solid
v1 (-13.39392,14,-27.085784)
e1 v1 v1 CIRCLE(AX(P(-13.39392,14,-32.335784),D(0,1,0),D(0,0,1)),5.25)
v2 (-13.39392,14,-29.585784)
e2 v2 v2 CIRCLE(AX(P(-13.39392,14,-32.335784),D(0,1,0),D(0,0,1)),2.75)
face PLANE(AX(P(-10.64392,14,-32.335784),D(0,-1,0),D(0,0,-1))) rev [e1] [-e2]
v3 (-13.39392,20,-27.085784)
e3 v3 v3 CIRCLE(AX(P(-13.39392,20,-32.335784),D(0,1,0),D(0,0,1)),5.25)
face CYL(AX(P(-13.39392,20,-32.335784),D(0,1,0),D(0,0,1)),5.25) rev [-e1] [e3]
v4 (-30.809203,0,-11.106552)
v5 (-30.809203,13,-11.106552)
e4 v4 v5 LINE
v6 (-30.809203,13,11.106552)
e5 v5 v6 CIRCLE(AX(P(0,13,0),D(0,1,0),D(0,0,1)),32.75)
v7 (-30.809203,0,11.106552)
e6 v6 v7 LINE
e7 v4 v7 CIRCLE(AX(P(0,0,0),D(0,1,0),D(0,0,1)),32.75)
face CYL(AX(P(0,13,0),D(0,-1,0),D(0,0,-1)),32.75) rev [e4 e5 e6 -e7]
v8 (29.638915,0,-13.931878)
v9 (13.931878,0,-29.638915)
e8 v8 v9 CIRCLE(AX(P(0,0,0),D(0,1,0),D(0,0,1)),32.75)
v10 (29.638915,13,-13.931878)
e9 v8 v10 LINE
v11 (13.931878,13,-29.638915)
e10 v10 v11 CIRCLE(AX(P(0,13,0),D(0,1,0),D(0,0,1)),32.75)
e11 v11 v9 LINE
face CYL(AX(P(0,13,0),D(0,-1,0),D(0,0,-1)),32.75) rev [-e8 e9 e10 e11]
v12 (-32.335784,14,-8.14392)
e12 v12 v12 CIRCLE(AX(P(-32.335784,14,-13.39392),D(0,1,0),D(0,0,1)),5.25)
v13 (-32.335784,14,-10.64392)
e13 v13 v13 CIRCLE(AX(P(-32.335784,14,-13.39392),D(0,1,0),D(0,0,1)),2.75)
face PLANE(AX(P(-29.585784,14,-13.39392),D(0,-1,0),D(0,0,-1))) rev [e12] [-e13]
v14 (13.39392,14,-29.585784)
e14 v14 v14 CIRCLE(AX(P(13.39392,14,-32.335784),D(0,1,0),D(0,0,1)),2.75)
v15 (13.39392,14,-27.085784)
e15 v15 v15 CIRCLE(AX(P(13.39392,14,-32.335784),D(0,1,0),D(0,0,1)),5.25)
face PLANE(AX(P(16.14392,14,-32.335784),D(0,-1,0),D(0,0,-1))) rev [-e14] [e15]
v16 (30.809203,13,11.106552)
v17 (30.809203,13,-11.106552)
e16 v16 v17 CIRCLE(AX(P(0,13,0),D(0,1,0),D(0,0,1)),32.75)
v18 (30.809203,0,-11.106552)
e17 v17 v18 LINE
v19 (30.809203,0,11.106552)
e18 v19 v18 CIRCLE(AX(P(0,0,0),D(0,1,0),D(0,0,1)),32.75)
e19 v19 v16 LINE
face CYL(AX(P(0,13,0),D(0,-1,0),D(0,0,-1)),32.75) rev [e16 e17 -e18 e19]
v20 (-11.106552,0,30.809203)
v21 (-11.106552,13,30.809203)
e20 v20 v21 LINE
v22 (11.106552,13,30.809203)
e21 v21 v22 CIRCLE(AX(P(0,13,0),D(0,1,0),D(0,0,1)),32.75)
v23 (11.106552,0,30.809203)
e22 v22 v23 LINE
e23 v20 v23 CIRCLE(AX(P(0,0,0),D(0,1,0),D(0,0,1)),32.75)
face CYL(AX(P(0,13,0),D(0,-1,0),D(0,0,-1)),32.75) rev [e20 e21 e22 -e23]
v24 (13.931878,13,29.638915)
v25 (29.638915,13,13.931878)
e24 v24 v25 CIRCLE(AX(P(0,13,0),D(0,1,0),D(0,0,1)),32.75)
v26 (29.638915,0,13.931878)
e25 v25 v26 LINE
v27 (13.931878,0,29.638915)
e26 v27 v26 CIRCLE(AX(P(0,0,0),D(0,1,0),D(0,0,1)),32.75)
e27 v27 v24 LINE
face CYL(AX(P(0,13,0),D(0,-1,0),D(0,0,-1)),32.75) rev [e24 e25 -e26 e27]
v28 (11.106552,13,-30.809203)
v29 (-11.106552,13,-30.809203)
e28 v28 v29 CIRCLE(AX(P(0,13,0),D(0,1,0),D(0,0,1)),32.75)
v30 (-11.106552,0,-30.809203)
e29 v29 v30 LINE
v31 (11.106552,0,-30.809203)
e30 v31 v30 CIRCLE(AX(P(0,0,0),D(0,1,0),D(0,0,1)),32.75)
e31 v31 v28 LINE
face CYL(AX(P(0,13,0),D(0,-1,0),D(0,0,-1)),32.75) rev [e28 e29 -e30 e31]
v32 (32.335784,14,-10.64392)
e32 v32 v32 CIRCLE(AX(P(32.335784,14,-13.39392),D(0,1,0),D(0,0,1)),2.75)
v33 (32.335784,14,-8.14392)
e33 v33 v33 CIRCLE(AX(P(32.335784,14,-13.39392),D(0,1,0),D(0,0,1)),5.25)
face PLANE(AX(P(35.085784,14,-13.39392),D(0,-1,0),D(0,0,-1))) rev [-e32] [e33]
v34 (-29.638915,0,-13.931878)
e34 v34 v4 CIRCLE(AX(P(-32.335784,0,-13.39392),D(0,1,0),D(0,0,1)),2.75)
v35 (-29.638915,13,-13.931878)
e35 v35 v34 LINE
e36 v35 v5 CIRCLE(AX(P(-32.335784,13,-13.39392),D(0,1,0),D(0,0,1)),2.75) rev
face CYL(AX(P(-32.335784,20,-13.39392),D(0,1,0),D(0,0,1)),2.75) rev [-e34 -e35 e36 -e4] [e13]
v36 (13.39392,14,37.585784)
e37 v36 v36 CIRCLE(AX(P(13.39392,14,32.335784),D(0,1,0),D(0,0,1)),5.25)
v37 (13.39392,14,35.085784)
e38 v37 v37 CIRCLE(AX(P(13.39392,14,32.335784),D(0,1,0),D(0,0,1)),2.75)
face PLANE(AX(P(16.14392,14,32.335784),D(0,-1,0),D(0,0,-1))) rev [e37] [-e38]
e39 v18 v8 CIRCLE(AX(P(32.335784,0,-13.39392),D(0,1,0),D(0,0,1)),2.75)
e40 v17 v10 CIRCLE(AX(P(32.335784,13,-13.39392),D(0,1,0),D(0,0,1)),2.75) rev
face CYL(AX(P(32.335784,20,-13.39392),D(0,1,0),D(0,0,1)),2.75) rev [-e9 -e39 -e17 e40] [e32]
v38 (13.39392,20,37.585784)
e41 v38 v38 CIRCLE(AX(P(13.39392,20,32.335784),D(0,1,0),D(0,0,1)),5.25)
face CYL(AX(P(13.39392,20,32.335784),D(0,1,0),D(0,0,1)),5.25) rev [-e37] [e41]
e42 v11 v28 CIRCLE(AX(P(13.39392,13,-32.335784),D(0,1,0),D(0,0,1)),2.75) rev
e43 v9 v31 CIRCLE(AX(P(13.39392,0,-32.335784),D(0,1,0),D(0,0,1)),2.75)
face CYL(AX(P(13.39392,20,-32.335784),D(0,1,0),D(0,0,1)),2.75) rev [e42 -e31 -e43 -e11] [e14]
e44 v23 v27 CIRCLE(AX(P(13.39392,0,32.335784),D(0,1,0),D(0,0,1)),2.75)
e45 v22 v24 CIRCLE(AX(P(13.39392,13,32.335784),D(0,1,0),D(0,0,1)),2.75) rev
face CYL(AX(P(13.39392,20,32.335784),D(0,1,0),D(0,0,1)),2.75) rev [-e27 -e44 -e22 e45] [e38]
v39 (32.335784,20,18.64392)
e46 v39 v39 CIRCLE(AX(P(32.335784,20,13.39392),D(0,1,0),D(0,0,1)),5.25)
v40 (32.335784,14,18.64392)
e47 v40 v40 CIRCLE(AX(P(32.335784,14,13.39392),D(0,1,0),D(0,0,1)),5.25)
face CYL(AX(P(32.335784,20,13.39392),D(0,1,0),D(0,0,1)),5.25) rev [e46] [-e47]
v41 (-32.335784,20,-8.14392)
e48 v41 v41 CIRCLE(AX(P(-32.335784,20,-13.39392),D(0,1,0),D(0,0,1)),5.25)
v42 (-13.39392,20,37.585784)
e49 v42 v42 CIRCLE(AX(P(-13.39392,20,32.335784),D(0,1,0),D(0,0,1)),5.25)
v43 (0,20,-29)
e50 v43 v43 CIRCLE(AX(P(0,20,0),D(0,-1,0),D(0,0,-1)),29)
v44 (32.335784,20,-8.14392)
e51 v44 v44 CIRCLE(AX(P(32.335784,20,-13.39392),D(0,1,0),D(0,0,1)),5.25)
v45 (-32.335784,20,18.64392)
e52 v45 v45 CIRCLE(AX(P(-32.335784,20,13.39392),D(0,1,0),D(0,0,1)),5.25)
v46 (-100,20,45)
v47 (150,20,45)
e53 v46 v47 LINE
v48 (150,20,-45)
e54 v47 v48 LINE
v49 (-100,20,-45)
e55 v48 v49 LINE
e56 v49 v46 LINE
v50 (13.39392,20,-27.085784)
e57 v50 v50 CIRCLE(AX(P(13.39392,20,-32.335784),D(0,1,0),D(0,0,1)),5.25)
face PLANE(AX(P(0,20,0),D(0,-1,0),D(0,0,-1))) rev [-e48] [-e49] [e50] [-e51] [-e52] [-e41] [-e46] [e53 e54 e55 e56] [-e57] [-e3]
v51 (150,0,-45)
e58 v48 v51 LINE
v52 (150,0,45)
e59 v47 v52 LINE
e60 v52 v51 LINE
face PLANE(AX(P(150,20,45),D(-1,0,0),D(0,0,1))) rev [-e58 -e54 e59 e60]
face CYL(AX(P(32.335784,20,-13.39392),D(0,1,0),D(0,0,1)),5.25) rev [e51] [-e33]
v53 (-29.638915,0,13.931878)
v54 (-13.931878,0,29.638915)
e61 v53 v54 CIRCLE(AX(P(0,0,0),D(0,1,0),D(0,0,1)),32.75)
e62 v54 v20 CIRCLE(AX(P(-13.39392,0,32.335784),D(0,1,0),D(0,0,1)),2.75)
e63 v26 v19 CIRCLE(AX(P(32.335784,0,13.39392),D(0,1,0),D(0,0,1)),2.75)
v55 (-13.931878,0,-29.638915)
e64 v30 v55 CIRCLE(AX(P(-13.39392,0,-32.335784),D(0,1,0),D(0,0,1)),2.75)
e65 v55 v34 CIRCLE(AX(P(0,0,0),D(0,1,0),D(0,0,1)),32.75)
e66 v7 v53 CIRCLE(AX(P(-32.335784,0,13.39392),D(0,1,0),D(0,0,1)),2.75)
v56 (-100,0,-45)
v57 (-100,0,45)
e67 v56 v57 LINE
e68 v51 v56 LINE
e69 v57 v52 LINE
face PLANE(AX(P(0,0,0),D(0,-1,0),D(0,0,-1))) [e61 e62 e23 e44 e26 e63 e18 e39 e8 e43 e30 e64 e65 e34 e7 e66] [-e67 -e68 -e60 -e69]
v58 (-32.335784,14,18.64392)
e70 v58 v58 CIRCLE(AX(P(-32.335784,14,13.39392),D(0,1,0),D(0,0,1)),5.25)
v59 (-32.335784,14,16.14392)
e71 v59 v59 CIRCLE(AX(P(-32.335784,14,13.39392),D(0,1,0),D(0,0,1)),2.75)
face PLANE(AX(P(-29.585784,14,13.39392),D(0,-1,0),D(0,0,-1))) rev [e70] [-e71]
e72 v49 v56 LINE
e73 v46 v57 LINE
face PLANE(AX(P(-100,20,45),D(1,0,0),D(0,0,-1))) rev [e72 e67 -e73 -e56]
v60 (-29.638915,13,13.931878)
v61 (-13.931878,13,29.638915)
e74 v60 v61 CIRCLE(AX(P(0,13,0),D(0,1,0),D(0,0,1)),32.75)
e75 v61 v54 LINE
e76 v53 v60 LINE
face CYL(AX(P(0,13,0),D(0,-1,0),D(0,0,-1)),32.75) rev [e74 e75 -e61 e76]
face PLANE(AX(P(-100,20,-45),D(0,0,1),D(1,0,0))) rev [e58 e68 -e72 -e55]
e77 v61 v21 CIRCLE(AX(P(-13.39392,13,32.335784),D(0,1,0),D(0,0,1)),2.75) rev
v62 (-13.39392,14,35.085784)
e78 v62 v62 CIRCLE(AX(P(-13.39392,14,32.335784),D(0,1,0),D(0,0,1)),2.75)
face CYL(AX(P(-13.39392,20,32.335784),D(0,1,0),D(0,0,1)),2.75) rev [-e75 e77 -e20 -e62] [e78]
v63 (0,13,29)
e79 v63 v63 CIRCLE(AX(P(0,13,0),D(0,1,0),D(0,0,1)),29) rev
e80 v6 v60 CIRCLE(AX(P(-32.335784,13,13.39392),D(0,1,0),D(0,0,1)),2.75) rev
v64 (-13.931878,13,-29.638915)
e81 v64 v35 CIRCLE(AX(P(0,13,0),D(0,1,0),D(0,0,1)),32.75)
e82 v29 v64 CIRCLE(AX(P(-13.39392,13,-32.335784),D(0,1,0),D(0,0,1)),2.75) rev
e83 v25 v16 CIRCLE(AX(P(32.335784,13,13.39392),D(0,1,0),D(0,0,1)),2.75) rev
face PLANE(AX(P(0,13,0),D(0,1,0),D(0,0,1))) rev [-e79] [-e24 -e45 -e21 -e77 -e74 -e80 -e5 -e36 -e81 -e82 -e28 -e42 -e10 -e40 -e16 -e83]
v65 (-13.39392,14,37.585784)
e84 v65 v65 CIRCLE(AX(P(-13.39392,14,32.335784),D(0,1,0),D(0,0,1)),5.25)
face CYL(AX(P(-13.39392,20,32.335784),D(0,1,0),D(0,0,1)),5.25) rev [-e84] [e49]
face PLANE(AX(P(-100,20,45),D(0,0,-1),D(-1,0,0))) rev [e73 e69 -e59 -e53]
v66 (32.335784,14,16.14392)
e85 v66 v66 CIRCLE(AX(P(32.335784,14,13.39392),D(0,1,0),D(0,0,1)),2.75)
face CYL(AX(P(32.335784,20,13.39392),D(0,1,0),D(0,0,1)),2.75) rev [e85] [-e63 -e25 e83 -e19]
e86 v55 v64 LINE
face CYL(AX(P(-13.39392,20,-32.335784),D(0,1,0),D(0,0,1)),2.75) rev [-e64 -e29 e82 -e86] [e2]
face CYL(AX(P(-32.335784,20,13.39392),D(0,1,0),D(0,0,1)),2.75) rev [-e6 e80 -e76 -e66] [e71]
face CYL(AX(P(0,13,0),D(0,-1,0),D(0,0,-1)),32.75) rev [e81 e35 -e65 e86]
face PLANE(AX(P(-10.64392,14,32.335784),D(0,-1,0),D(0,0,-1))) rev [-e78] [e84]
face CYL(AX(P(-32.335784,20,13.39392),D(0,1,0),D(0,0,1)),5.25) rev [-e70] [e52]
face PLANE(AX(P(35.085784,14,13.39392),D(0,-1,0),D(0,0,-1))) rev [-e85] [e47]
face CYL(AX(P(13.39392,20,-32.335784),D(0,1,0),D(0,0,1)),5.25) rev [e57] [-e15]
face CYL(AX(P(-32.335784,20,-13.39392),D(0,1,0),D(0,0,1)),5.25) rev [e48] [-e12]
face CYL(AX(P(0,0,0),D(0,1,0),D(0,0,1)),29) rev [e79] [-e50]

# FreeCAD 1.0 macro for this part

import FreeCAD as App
import Part
import Sketcher
from FreeCAD import Vector

doc = App.newDocument("Part")
body = doc.addObject("PartDesign::Body", "Body")

# Sketch on XZ plane
sketch1 = body.newObject("Sketcher::SketchObject", "Sketch")
sketch1.AttachmentSupport = (doc.getObject("XZ_Plane"), [""])
sketch1.MapMode = "FlatFace"
sketch1.addGeometry(Part.LineSegment(Vector(-100, -45, 0), Vector(-100, 45, 0)), False)
sketch1.addGeometry(Part.LineSegment(Vector(-100, 45, 0), Vector(150, 45, 0)), False)
sketch1.addGeometry(Part.LineSegment(Vector(150, 45, 0), Vector(150, -45, 0)), False)
sketch1.addGeometry(Part.LineSegment(Vector(150, -45, 0), Vector(-100, -45, 0)), False)
sketch1.addConstraint(Sketcher.Constraint("Coincident", 0, 2, 1, 1))
sketch1.addConstraint(Sketcher.Constraint("Coincident", 1, 2, 2, 1))
sketch1.addConstraint(Sketcher.Constraint("Coincident", 2, 2, 3, 1))
sketch1.addConstraint(Sketcher.Constraint("Coincident", 3, 2, 0, 1))
sketch1.addConstraint(Sketcher.Constraint("Vertical", 0))
sketch1.addConstraint(Sketcher.Constraint("Horizontal", 1))
sketch1.addConstraint(Sketcher.Constraint("Vertical", 2))
sketch1.addConstraint(Sketcher.Constraint("Horizontal", 3))
sketch1.addConstraint(Sketcher.Constraint("DistanceX", 1, 1, 1, 2, 250.0))
sketch1.addConstraint(Sketcher.Constraint("DistanceY", 0, 1, 0, 2, 90.0))
sketch1.addConstraint(Sketcher.Constraint("DistanceX", 0, 2, -1, 1, 100.0))
sketch1.addConstraint(Sketcher.Constraint("DistanceY", -1, 1, 0, 2, 45.0))
pad1 = body.newObject("PartDesign::Pad", "Pad")
pad1.Profile = sketch1
pad1.Length = 20
pad1.Reversed = True

# Sketch on XZ plane
sketch2 = body.newObject("Sketcher::SketchObject", "Sketch001")
sketch2.AttachmentSupport = (doc.getObject("XZ_Plane"), [""])
sketch2.MapMode = "FlatFace"
sketch2.AttachmentOffset = App.Placement(Vector(0, 0, -20), App.Rotation())
sketch2.addGeometry(Part.Circle(Vector(0, 0, 0), Vector(0, 0, 1), 29), False)
sketch2.addConstraint(Sketcher.Constraint("Coincident", 0, 3, -1, 1))
sketch2.addConstraint(Sketcher.Constraint("Diameter", 0, 58.0))
pocket1 = body.newObject("PartDesign::Pocket", "Pocket")
pocket1.Profile = sketch2
pocket1.Type = "ThroughAll"
pocket1.Midplane = True

# Sketch on XZ plane
sketch3 = body.newObject("Sketcher::SketchObject", "Sketch002")
sketch3.AttachmentSupport = (doc.getObject("XZ_Plane"), [""])
sketch3.MapMode = "FlatFace"
sketch3.AttachmentOffset = App.Placement(Vector(0, 0, -20), App.Rotation())
sketch3.addGeometry(Part.Circle(Vector(-32.335784, -13.39392, 0), Vector(0, 0, 1), 2.75), False)
sketch3.addGeometry(Part.Circle(Vector(-13.39392, -32.335784, 0), Vector(0, 0, 1), 2.75), False)
sketch3.addGeometry(Part.Circle(Vector(13.39392, -32.335784, 0), Vector(0, 0, 1), 2.75), False)
sketch3.addGeometry(Part.Circle(Vector(32.335784, -13.39392, 0), Vector(0, 0, 1), 2.75), False)
sketch3.addGeometry(Part.Circle(Vector(32.335784, 13.39392, 0), Vector(0, 0, 1), 2.75), False)
sketch3.addGeometry(Part.Circle(Vector(13.39392, 32.335784, 0), Vector(0, 0, 1), 2.75), False)
sketch3.addGeometry(Part.Circle(Vector(-13.39392, 32.335784, 0), Vector(0, 0, 1), 2.75), False)
sketch3.addGeometry(Part.Circle(Vector(-32.335784, 13.39392, 0), Vector(0, 0, 1), 2.75), False)
sketch3.addConstraint(Sketcher.Constraint("Equal", 0, 1))
sketch3.addConstraint(Sketcher.Constraint("Equal", 1, 2))
sketch3.addConstraint(Sketcher.Constraint("Equal", 2, 3))
sketch3.addConstraint(Sketcher.Constraint("Equal", 3, 4))
sketch3.addConstraint(Sketcher.Constraint("Equal", 4, 5))
sketch3.addConstraint(Sketcher.Constraint("Equal", 5, 6))
sketch3.addConstraint(Sketcher.Constraint("Equal", 6, 7))
sketch3.addConstraint(Sketcher.Constraint("Symmetric", 0, 3, 4, 3, -1, 1))
sketch3.addConstraint(Sketcher.Constraint("Symmetric", 1, 3, 5, 3, -1, 1))
sketch3.addConstraint(Sketcher.Constraint("Symmetric", 2, 3, 6, 3, -1, 1))
sketch3.addConstraint(Sketcher.Constraint("Symmetric", 3, 3, 7, 3, -1, 1))
sketch3.addConstraint(Sketcher.Constraint("Symmetric", 1, 3, 2, 3, -2))
sketch3.addConstraint(Sketcher.Constraint("Symmetric", 0, 3, 3, 3, -2))
sketch3.addConstraint(Sketcher.Constraint("Diameter", 0, 5.5))
sketch3.addConstraint(Sketcher.Constraint("DistanceY", 0, 3, -1, 1, 13.39392))
sketch3.addConstraint(Sketcher.Constraint("DistanceX", 1, 3, -1, 1, 13.39392))
sketch3.addConstraint(Sketcher.Constraint("DistanceX", 0, 3, -1, 1, 32.335784))
sketch3.addConstraint(Sketcher.Constraint("DistanceY", 1, 3, -1, 1, 32.335784))
doc.recompute()
hole = body.newObject("PartDesign::Hole", "Hole")
hole.Profile = sketch3
hole.ThreadType = "None"
hole.Diameter = 5.5
hole.DepthType = "ThroughAll"
hole.HoleCutType = "Counterbore"
hole.HoleCutDiameter = 10.5
hole.HoleCutDepth = 6
hole.Reversed = True

# Sketch on XZ plane
sketch4 = body.newObject("Sketcher::SketchObject", "Sketch003")
sketch4.AttachmentSupport = (doc.getObject("XZ_Plane"), [""])
sketch4.MapMode = "FlatFace"
sketch4.addGeometry(Part.Circle(Vector(0, 0, 0), Vector(0, 0, 1), 32.75), False)
sketch4.addConstraint(Sketcher.Constraint("Coincident", 0, 3, -1, 1))
sketch4.addConstraint(Sketcher.Constraint("Diameter", 0, 65.5))
pocket2 = body.newObject("PartDesign::Pocket", "Pocket001")
pocket2.Profile = sketch4
pocket2.Length = 13

doc.recompute()
